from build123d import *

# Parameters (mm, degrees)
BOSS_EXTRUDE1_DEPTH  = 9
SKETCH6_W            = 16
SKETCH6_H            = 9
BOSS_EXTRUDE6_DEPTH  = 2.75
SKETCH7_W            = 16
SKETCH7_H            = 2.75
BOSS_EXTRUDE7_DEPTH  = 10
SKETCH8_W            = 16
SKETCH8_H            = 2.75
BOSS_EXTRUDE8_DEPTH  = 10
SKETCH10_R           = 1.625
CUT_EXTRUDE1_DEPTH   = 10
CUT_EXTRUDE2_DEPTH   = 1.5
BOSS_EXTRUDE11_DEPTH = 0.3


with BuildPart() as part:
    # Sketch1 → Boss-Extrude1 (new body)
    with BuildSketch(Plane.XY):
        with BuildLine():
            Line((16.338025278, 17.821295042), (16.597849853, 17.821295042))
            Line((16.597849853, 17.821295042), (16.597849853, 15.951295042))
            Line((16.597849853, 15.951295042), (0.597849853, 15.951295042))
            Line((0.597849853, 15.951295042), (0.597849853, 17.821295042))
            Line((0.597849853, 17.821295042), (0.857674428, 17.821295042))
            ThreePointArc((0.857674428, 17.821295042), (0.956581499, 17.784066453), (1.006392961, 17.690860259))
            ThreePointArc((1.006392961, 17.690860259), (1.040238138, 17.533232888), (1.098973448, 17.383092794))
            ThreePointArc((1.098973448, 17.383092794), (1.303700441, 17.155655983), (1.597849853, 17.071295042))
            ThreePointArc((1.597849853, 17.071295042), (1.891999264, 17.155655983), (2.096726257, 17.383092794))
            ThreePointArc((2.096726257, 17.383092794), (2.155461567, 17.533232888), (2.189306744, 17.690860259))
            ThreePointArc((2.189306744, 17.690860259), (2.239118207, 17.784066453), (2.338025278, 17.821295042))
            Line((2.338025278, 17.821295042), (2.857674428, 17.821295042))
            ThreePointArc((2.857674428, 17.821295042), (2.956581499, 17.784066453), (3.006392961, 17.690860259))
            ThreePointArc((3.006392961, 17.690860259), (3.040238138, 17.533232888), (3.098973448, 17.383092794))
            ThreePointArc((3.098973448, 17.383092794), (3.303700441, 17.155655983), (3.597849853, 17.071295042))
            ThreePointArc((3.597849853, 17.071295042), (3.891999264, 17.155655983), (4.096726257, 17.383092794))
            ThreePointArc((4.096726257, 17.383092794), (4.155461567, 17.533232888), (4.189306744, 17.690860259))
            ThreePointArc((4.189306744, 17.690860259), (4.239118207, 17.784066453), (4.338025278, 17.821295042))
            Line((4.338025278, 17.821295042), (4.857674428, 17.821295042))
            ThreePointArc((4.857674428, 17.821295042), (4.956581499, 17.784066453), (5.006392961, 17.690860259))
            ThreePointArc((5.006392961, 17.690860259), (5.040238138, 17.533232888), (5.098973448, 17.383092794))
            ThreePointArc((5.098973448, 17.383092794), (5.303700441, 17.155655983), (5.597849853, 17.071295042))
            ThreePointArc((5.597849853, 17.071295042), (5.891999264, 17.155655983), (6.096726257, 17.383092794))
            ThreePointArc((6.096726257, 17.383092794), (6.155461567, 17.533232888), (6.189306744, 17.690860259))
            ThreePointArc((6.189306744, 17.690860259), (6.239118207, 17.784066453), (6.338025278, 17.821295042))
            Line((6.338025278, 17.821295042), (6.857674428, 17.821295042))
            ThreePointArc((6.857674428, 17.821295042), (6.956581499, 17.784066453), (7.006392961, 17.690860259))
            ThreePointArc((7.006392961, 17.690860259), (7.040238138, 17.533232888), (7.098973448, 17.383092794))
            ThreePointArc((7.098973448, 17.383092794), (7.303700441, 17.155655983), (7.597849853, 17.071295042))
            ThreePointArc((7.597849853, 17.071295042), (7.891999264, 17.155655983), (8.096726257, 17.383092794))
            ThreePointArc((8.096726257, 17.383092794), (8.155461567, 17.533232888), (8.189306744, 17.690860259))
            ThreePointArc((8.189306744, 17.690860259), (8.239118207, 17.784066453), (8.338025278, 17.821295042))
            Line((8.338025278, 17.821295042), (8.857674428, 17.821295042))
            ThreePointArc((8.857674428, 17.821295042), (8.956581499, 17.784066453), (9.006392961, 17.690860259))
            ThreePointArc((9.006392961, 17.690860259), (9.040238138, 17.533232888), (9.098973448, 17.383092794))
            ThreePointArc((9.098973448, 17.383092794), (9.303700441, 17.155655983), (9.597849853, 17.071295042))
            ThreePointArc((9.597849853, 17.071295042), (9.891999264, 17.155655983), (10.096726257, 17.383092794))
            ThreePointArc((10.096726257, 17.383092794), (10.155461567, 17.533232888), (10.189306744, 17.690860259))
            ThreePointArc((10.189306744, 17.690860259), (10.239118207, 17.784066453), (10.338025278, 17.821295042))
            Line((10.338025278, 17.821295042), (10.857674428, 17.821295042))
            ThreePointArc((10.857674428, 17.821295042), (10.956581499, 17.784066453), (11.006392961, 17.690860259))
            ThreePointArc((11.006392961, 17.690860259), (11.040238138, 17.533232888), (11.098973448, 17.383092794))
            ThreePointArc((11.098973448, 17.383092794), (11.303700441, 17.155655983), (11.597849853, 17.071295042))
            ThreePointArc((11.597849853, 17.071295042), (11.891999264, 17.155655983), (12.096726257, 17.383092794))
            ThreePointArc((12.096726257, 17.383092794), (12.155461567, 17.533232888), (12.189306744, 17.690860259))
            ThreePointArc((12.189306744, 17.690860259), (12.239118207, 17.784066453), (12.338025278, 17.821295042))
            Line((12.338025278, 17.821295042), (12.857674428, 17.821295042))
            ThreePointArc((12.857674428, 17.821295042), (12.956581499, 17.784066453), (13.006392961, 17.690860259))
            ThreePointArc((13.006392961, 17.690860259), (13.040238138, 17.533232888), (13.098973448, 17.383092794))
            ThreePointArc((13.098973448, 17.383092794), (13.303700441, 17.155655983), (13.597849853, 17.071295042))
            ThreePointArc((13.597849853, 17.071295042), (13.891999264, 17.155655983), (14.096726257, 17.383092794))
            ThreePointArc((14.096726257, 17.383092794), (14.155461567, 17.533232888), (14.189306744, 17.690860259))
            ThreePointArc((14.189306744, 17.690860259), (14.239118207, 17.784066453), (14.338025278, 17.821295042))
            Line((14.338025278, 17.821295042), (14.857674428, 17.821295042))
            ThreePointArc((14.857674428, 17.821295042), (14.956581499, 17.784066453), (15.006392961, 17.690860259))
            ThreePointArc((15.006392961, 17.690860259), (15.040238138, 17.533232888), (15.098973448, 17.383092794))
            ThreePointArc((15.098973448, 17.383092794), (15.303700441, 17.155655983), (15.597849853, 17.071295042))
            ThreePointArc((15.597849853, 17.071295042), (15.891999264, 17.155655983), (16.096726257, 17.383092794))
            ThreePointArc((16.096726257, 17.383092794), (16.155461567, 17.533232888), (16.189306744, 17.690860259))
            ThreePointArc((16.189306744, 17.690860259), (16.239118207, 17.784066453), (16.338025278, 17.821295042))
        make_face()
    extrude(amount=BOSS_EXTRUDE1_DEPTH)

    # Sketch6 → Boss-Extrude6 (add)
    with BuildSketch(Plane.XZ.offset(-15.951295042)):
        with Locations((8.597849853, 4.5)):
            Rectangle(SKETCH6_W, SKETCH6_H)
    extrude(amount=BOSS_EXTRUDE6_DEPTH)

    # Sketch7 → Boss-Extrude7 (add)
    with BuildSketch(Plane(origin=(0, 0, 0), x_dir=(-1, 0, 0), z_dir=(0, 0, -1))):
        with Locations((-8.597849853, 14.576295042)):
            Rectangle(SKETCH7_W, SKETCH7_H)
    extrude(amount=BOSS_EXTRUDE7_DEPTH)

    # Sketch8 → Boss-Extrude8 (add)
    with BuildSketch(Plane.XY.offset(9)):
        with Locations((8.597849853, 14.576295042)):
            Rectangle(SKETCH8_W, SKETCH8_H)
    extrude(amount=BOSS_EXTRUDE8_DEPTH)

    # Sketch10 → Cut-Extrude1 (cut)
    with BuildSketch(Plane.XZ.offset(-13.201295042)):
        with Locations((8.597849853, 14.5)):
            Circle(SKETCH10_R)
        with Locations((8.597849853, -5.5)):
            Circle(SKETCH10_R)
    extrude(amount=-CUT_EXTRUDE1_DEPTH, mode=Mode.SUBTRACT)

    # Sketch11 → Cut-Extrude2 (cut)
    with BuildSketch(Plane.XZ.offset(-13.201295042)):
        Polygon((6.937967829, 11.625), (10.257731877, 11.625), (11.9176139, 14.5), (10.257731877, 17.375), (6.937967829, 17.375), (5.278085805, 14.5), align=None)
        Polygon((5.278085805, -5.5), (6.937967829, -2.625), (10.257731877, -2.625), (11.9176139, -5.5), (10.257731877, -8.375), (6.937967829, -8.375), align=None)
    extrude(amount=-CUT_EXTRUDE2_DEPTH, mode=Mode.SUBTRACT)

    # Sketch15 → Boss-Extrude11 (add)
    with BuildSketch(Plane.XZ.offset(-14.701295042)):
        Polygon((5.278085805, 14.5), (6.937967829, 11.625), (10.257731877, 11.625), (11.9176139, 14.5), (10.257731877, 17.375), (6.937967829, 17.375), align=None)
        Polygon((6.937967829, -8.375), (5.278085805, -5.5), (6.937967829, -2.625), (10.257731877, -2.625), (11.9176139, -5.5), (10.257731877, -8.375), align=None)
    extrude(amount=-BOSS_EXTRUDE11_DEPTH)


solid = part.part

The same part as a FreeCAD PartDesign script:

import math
import FreeCAD as App
import Part
import Sketcher

V = App.Vector
Q = App.Units.Quantity


def add_polygon(sketch, points):
    """Adds a closed chain of lines whose ends are joined by coincident constraints."""
    first, n = sketch.GeometryCount, len(points)
    for a, b in zip(points, points[1:] + points[:1]):
        sketch.addGeometry(Part.LineSegment(App.Vector(*a, 0), App.Vector(*b, 0)), False)
    for i in range(n):
        sketch.addConstraint(Sketcher.Constraint("Coincident", first + i, 2, first + (i + 1) % n, 1))

doc = App.newDocument("Part")
body = doc.addObject("PartDesign::Body", "Body")

# Sketch on XY plane
sketch1 = body.newObject("Sketcher::SketchObject", "Sketch")
sketch1.AttachmentSupport = (doc.getObject("XY_Plane"), [""])
sketch1.MapMode = "FlatFace"
sketch1.addGeometry(Part.LineSegment(V(16.6, 17.82, 0), V(16.34, 17.82, 0)), False)
sketch1.addGeometry(Part.ArcOfCircle(Part.Circle(V(16.34, 17.67, 0), V(0, 0, 1), 0.15), math.radians(90), math.radians(173)), False)
sketch1.addGeometry(Part.ArcOfCircle(Part.Circle(V(15.2, 17.82, 0), V(0, 0, 1), 1), math.radians(-25.99), math.radians(-7.49)), False)
sketch1.addGeometry(Part.ArcOfCircle(Part.Circle(V(15.6, 17.63, 0), V(0, 0, 1), 0.56), math.radians(-90), math.radians(-26)), False)
sketch1.addGeometry(Part.ArcOfCircle(Part.Circle(V(15.6, 17.63, 0), V(0, 0, 1), 0.56), math.radians(-154), math.radians(-90)), False)
sketch1.addGeometry(Part.ArcOfCircle(Part.Circle(V(16, 17.82, 0), V(0, 0, 1), 1), math.radians(-172.51), math.radians(-154.01)), False)
sketch1.addGeometry(Part.ArcOfCircle(Part.Circle(V(14.86, 17.67, 0), V(0, 0, 1), 0.15), math.radians(7), math.radians(90)), False)
sketch1.addGeometry(Part.LineSegment(V(14.86, 17.82, 0), V(14.34, 17.82, 0)), False)
sketch1.addGeometry(Part.ArcOfCircle(Part.Circle(V(14.34, 17.67, 0), V(0, 0, 1), 0.15), math.radians(90), math.radians(173)), False)
sketch1.addGeometry(Part.ArcOfCircle(Part.Circle(V(13.2, 17.82, 0), V(0, 0, 1), 1), math.radians(-25.99), math.radians(-7.49)), False)
sketch1.addGeometry(Part.ArcOfCircle(Part.Circle(V(13.6, 17.63, 0), V(0, 0, 1), 0.56), math.radians(-90), math.radians(-26)), False)
sketch1.addGeometry(Part.ArcOfCircle(Part.Circle(V(13.6, 17.63, 0), V(0, 0, 1), 0.56), math.radians(-154), math.radians(-90)), False)
sketch1.addGeometry(Part.ArcOfCircle(Part.Circle(V(14, 17.82, 0), V(0, 0, 1), 1), math.radians(-172.51), math.radians(-154.01)), False)
sketch1.addGeometry(Part.ArcOfCircle(Part.Circle(V(12.86, 17.67, 0), V(0, 0, 1), 0.15), math.radians(7), math.radians(90)), False)
sketch1.addGeometry(Part.LineSegment(V(12.86, 17.82, 0), V(12.34, 17.82, 0)), False)
sketch1.addGeometry(Part.ArcOfCircle(Part.Circle(V(12.34, 17.67, 0), V(0, 0, 1), 0.15), math.radians(90), math.radians(173)), False)
sketch1.addGeometry(Part.ArcOfCircle(Part.Circle(V(11.2, 17.82, 0), V(0, 0, 1), 1), math.radians(-25.99), math.radians(-7.49)), False)
sketch1.addGeometry(Part.ArcOfCircle(Part.Circle(V(11.6, 17.63, 0), V(0, 0, 1), 0.56), math.radians(-90), math.radians(-26)), False)
sketch1.addGeometry(Part.ArcOfCircle(Part.Circle(V(11.6, 17.63, 0), V(0, 0, 1), 0.56), math.radians(-154), math.radians(-90)), False)
sketch1.addGeometry(Part.ArcOfCircle(Part.Circle(V(12, 17.82, 0), V(0, 0, 1), 1), math.radians(-172.51), math.radians(-154.01)), False)
sketch1.addGeometry(Part.ArcOfCircle(Part.Circle(V(10.86, 17.67, 0), V(0, 0, 1), 0.15), math.radians(7), math.radians(90)), False)
sketch1.addGeometry(Part.LineSegment(V(10.86, 17.82, 0), V(10.34, 17.82, 0)), False)
sketch1.addGeometry(Part.ArcOfCircle(Part.Circle(V(10.34, 17.67, 0), V(0, 0, 1), 0.15), math.radians(90), math.radians(173)), False)
sketch1.addGeometry(Part.ArcOfCircle(Part.Circle(V(9.2, 17.82, 0), V(0, 0, 1), 1), math.radians(-25.99), math.radians(-7.49)), False)
sketch1.addGeometry(Part.ArcOfCircle(Part.Circle(V(9.6, 17.63, 0), V(0, 0, 1), 0.56), math.radians(-90), math.radians(-26)), False)
sketch1.addGeometry(Part.ArcOfCircle(Part.Circle(V(9.6, 17.63, 0), V(0, 0, 1), 0.56), math.radians(-154), math.radians(-90)), False)
sketch1.addGeometry(Part.ArcOfCircle(Part.Circle(V(10, 17.82, 0), V(0, 0, 1), 1), math.radians(-172.51), math.radians(-154.01)), False)
sketch1.addGeometry(Part.ArcOfCircle(Part.Circle(V(8.86, 17.67, 0), V(0, 0, 1), 0.15), math.radians(7), math.radians(90)), False)
sketch1.addGeometry(Part.LineSegment(V(8.86, 17.82, 0), V(8.34, 17.82, 0)), False)
sketch1.addGeometry(Part.ArcOfCircle(Part.Circle(V(8.34, 17.67, 0), V(0, 0, 1), 0.15), math.radians(90), math.radians(173)), False)
sketch1.addGeometry(Part.ArcOfCircle(Part.Circle(V(7.2, 17.82, 0), V(0, 0, 1), 1), math.radians(-25.99), math.radians(-7.49)), False)
sketch1.addGeometry(Part.ArcOfCircle(Part.Circle(V(7.6, 17.63, 0), V(0, 0, 1), 0.56), math.radians(-90), math.radians(-26)), False)
sketch1.addGeometry(Part.ArcOfCircle(Part.Circle(V(7.6, 17.63, 0), V(0, 0, 1), 0.56), math.radians(-154), math.radians(-90)), False)
sketch1.addGeometry(Part.ArcOfCircle(Part.Circle(V(8, 17.82, 0), V(0, 0, 1), 1), math.radians(-172.51), math.radians(-154.01)), False)
sketch1.addGeometry(Part.ArcOfCircle(Part.Circle(V(6.86, 17.67, 0), V(0, 0, 1), 0.15), math.radians(7), math.radians(90)), False)
sketch1.addGeometry(Part.LineSegment(V(6.86, 17.82, 0), V(6.34, 17.82, 0)), False)
sketch1.addGeometry(Part.ArcOfCircle(Part.Circle(V(6.34, 17.67, 0), V(0, 0, 1), 0.15), math.radians(90), math.radians(173)), False)
sketch1.addGeometry(Part.ArcOfCircle(Part.Circle(V(5.2, 17.82, 0), V(0, 0, 1), 1), math.radians(-25.99), math.radians(-7.49)), False)
sketch1.addGeometry(Part.ArcOfCircle(Part.Circle(V(5.6, 17.63, 0), V(0, 0, 1), 0.56), math.radians(-90), math.radians(-26)), False)
sketch1.addGeometry(Part.ArcOfCircle(Part.Circle(V(5.6, 17.63, 0), V(0, 0, 1), 0.56), math.radians(-154), math.radians(-90)), False)
sketch1.addGeometry(Part.ArcOfCircle(Part.Circle(V(6, 17.82, 0), V(0, 0, 1), 1), math.radians(-172.51), math.radians(-154.01)), False)
sketch1.addGeometry(Part.ArcOfCircle(Part.Circle(V(4.86, 17.67, 0), V(0, 0, 1), 0.15), math.radians(7), math.radians(90)), False)
sketch1.addGeometry(Part.LineSegment(V(4.86, 17.82, 0), V(4.34, 17.82, 0)), False)
sketch1.addGeometry(Part.ArcOfCircle(Part.Circle(V(4.34, 17.67, 0), V(0, 0, 1), 0.15), math.radians(90), math.radians(173)), False)
sketch1.addGeometry(Part.ArcOfCircle(Part.Circle(V(3.2, 17.82, 0), V(0, 0, 1), 1), math.radians(-25.99), math.radians(-7.49)), False)
sketch1.addGeometry(Part.ArcOfCircle(Part.Circle(V(3.6, 17.63, 0), V(0, 0, 1), 0.56), math.radians(-90), math.radians(-26)), False)
sketch1.addGeometry(Part.ArcOfCircle(Part.Circle(V(3.6, 17.63, 0), V(0, 0, 1), 0.56), math.radians(-154), math.radians(-90)), False)
sketch1.addGeometry(Part.ArcOfCircle(Part.Circle(V(4, 17.82, 0), V(0, 0, 1), 1), math.radians(-172.51), math.radians(-154.01)), False)
sketch1.addGeometry(Part.ArcOfCircle(Part.Circle(V(2.86, 17.67, 0), V(0, 0, 1), 0.15), math.radians(7), math.radians(90)), False)
sketch1.addGeometry(Part.LineSegment(V(2.86, 17.82, 0), V(2.34, 17.82, 0)), False)
sketch1.addGeometry(Part.ArcOfCircle(Part.Circle(V(2.34, 17.67, 0), V(0, 0, 1), 0.15), math.radians(90), math.radians(173)), False)
sketch1.addGeometry(Part.ArcOfCircle(Part.Circle(V(1.2, 17.82, 0), V(0, 0, 1), 1), math.radians(-25.99), math.radians(-7.49)), False)
sketch1.addGeometry(Part.ArcOfCircle(Part.Circle(V(1.6, 17.63, 0), V(0, 0, 1), 0.56), math.radians(-90), math.radians(-26)), False)
sketch1.addGeometry(Part.ArcOfCircle(Part.Circle(V(1.6, 17.63, 0), V(0, 0, 1), 0.56), math.radians(-154), math.radians(-90)), False)
sketch1.addGeometry(Part.ArcOfCircle(Part.Circle(V(2, 17.82, 0), V(0, 0, 1), 1), math.radians(-172.51), math.radians(-154.01)), False)
sketch1.addGeometry(Part.ArcOfCircle(Part.Circle(V(0.86, 17.67, 0), V(0, 0, 1), 0.15), math.radians(7), math.radians(90)), False)
sketch1.addGeometry(Part.LineSegment(V(0.86, 17.82, 0), V(0.6, 17.82, 0)), False)
sketch1.addGeometry(Part.LineSegment(V(0.6, 17.82, 0), V(0.6, 15.95, 0)), False)
sketch1.addGeometry(Part.LineSegment(V(0.6, 15.95, 0), V(16.6, 15.95, 0)), False)
sketch1.addGeometry(Part.LineSegment(V(16.6, 15.95, 0), V(16.6, 17.82, 0)), False)
sketch1.addConstraint(Sketcher.Constraint("Tangent", 0, 2, 1, 1))
sketch1.addConstraint(Sketcher.Constraint("Tangent", 1, 2, 2, 2))
sketch1.addConstraint(Sketcher.Constraint("Tangent", 2, 1, 3, 2))
sketch1.addConstraint(Sketcher.Constraint("Tangent", 3, 1, 4, 2))
sketch1.addConstraint(Sketcher.Constraint("Tangent", 4, 1, 5, 2))
sketch1.addConstraint(Sketcher.Constraint("Tangent", 5, 1, 6, 1))
sketch1.addConstraint(Sketcher.Constraint("Tangent", 6, 2, 7, 1))
sketch1.addConstraint(Sketcher.Constraint("Tangent", 7, 2, 8, 1))
sketch1.addConstraint(Sketcher.Constraint("Tangent", 8, 2, 9, 2))
sketch1.addConstraint(Sketcher.Constraint("Tangent", 9, 1, 10, 2))
sketch1.addConstraint(Sketcher.Constraint("Tangent", 10, 1, 11, 2))
sketch1.addConstraint(Sketcher.Constraint("Tangent", 11, 1, 12, 2))
sketch1.addConstraint(Sketcher.Constraint("Tangent", 12, 1, 13, 1))
sketch1.addConstraint(Sketcher.Constraint("Tangent", 13, 2, 14, 1))
sketch1.addConstraint(Sketcher.Constraint("Tangent", 14, 2, 15, 1))
sketch1.addConstraint(Sketcher.Constraint("Tangent", 15, 2, 16, 2))
sketch1.addConstraint(Sketcher.Constraint("Tangent", 16, 1, 17, 2))
sketch1.addConstraint(Sketcher.Constraint("Tangent", 17, 1, 18, 2))
sketch1.addConstraint(Sketcher.Constraint("Tangent", 18, 1, 19, 2))
sketch1.addConstraint(Sketcher.Constraint("Tangent", 19, 1, 20, 1))
sketch1.addConstraint(Sketcher.Constraint("Tangent", 20, 2, 21, 1))
sketch1.addConstraint(Sketcher.Constraint("Tangent", 21, 2, 22, 1))
sketch1.addConstraint(Sketcher.Constraint("Tangent", 22, 2, 23, 2))
sketch1.addConstraint(Sketcher.Constraint("Tangent", 23, 1, 24, 2))
sketch1.addConstraint(Sketcher.Constraint("Tangent", 24, 1, 25, 2))
sketch1.addConstraint(Sketcher.Constraint("Tangent", 25, 1, 26, 2))
sketch1.addConstraint(Sketcher.Constraint("Tangent", 26, 1, 27, 1))
sketch1.addConstraint(Sketcher.Constraint("Tangent", 27, 2, 28, 1))
sketch1.addConstraint(Sketcher.Constraint("Tangent", 28, 2, 29, 1))
sketch1.addConstraint(Sketcher.Constraint("Tangent", 29, 2, 30, 2))
sketch1.addConstraint(Sketcher.Constraint("Tangent", 30, 1, 31, 2))
sketch1.addConstraint(Sketcher.Constraint("Tangent", 31, 1, 32, 2))
sketch1.addConstraint(Sketcher.Constraint("Tangent", 32, 1, 33, 2))
sketch1.addConstraint(Sketcher.Constraint("Tangent", 33, 1, 34, 1))
sketch1.addConstraint(Sketcher.Constraint("Tangent", 34, 2, 35, 1))
sketch1.addConstraint(Sketcher.Constraint("Tangent", 35, 2, 36, 1))
sketch1.addConstraint(Sketcher.Constraint("Tangent", 36, 2, 37, 2))
sketch1.addConstraint(Sketcher.Constraint("Tangent", 37, 1, 38, 2))
sketch1.addConstraint(Sketcher.Constraint("Tangent", 38, 1, 39, 2))
sketch1.addConstraint(Sketcher.Constraint("Tangent", 39, 1, 40, 2))
sketch1.addConstraint(Sketcher.Constraint("Tangent", 40, 1, 41, 1))
sketch1.addConstraint(Sketcher.Constraint("Tangent", 41, 2, 42, 1))
sketch1.addConstraint(Sketcher.Constraint("Tangent", 42, 2, 43, 1))
sketch1.addConstraint(Sketcher.Constraint("Tangent", 43, 2, 44, 2))
sketch1.addConstraint(Sketcher.Constraint("Tangent", 44, 1, 45, 2))
sketch1.addConstraint(Sketcher.Constraint("Tangent", 45, 1, 46, 2))
sketch1.addConstraint(Sketcher.Constraint("Tangent", 46, 1, 47, 2))
sketch1.addConstraint(Sketcher.Constraint("Tangent", 47, 1, 48, 1))
sketch1.addConstraint(Sketcher.Constraint("Tangent", 48, 2, 49, 1))
sketch1.addConstraint(Sketcher.Constraint("Tangent", 49, 2, 50, 1))
sketch1.addConstraint(Sketcher.Constraint("Tangent", 50, 2, 51, 2))
sketch1.addConstraint(Sketcher.Constraint("Tangent", 51, 1, 52, 2))
sketch1.addConstraint(Sketcher.Constraint("Tangent", 52, 1, 53, 2))
sketch1.addConstraint(Sketcher.Constraint("Tangent", 53, 1, 54, 2))
sketch1.addConstraint(Sketcher.Constraint("Tangent", 54, 1, 55, 1))
sketch1.addConstraint(Sketcher.Constraint("Tangent", 55, 2, 56, 1))
sketch1.addConstraint(Sketcher.Constraint("Coincident", 56, 2, 57, 1))
sketch1.addConstraint(Sketcher.Constraint("Coincident", 57, 2, 58, 1))
sketch1.addConstraint(Sketcher.Constraint("Coincident", 58, 2, 59, 1))
sketch1.addConstraint(Sketcher.Constraint("Coincident", 59, 2, 0, 1))
sketch1.addConstraint(Sketcher.Constraint("Horizontal", 0))
sketch1.addConstraint(Sketcher.Constraint("Horizontal", 7))
sketch1.addConstraint(Sketcher.Constraint("Horizontal", 14))
sketch1.addConstraint(Sketcher.Constraint("Horizontal", 21))
sketch1.addConstraint(Sketcher.Constraint("Horizontal", 28))
sketch1.addConstraint(Sketcher.Constraint("Horizontal", 35))
sketch1.addConstraint(Sketcher.Constraint("Horizontal", 42))
sketch1.addConstraint(Sketcher.Constraint("Horizontal", 49))
sketch1.addConstraint(Sketcher.Constraint("Horizontal", 56))
sketch1.addConstraint(Sketcher.Constraint("Vertical", 57))
sketch1.addConstraint(Sketcher.Constraint("Horizontal", 58))
sketch1.addConstraint(Sketcher.Constraint("Vertical", 59))
sketch1.addConstraint(Sketcher.Constraint("Equal", 3, 4))
sketch1.addConstraint(Sketcher.Constraint("Equal", 2, 5))
sketch1.addConstraint(Sketcher.Constraint("Equal", 1, 6))
sketch1.addConstraint(Sketcher.Constraint("Equal", 6, 8))
sketch1.addConstraint(Sketcher.Constraint("Equal", 5, 9))
sketch1.addConstraint(Sketcher.Constraint("Equal", 4, 10))
sketch1.addConstraint(Sketcher.Constraint("Equal", 10, 11))
sketch1.addConstraint(Sketcher.Constraint("Equal", 9, 12))
sketch1.addConstraint(Sketcher.Constraint("Equal", 8, 13))
sketch1.addConstraint(Sketcher.Constraint("Equal", 13, 15))
sketch1.addConstraint(Sketcher.Constraint("Equal", 12, 16))
sketch1.addConstraint(Sketcher.Constraint("Equal", 11, 17))
sketch1.addConstraint(Sketcher.Constraint("Equal", 17, 18))
sketch1.addConstraint(Sketcher.Constraint("Equal", 16, 19))
sketch1.addConstraint(Sketcher.Constraint("Equal", 15, 20))
sketch1.addConstraint(Sketcher.Constraint("Equal", 20, 22))
sketch1.addConstraint(Sketcher.Constraint("Equal", 19, 23))
sketch1.addConstraint(Sketcher.Constraint("Equal", 18, 24))
sketch1.addConstraint(Sketcher.Constraint("Equal", 24, 25))
sketch1.addConstraint(Sketcher.Constraint("Equal", 23, 26))
sketch1.addConstraint(Sketcher.Constraint("Equal", 22, 27))
sketch1.addConstraint(Sketcher.Constraint("Equal", 27, 29))
sketch1.addConstraint(Sketcher.Constraint("Equal", 26, 30))
sketch1.addConstraint(Sketcher.Constraint("Equal", 25, 31))
sketch1.addConstraint(Sketcher.Constraint("Equal", 31, 32))
sketch1.addConstraint(Sketcher.Constraint("Equal", 30, 33))
sketch1.addConstraint(Sketcher.Constraint("Equal", 29, 34))
sketch1.addConstraint(Sketcher.Constraint("Equal", 34, 36))
sketch1.addConstraint(Sketcher.Constraint("Equal", 33, 37))
sketch1.addConstraint(Sketcher.Constraint("Equal", 32, 38))
sketch1.addConstraint(Sketcher.Constraint("Equal", 38, 39))
sketch1.addConstraint(Sketcher.Constraint("Equal", 37, 40))
sketch1.addConstraint(Sketcher.Constraint("Equal", 36, 41))
sketch1.addConstraint(Sketcher.Constraint("Equal", 41, 43))
sketch1.addConstraint(Sketcher.Constraint("Equal", 40, 44))
sketch1.addConstraint(Sketcher.Constraint("Equal", 39, 45))
sketch1.addConstraint(Sketcher.Constraint("Equal", 45, 46))
sketch1.addConstraint(Sketcher.Constraint("Equal", 44, 47))
sketch1.addConstraint(Sketcher.Constraint("Equal", 43, 48))
sketch1.addConstraint(Sketcher.Constraint("Equal", 48, 50))
sketch1.addConstraint(Sketcher.Constraint("Equal", 47, 51))
sketch1.addConstraint(Sketcher.Constraint("Equal", 46, 52))
sketch1.addConstraint(Sketcher.Constraint("Equal", 52, 53))
sketch1.addConstraint(Sketcher.Constraint("Equal", 51, 54))
sketch1.addConstraint(Sketcher.Constraint("Equal", 50, 55))
sketch1.addConstraint(Sketcher.Constraint("Horizontal", 2, 3, 5, 3))
sketch1.addConstraint(Sketcher.Constraint("Horizontal", 1, 3, 6, 3))
sketch1.addConstraint(Sketcher.Constraint("Horizontal", 5, 3, 9, 3))
sketch1.addConstraint(Sketcher.Constraint("Horizontal", 4, 3, 10, 3))
sketch1.addConstraint(Sketcher.Constraint("Horizontal", 9, 3, 12, 3))
sketch1.addConstraint(Sketcher.Constraint("Horizontal", 8, 3, 13, 3))
sketch1.addConstraint(Sketcher.Constraint("Horizontal", 12, 3, 16, 3))
sketch1.addConstraint(Sketcher.Constraint("Horizontal", 11, 3, 17, 3))
sketch1.addConstraint(Sketcher.Constraint("Horizontal", 16, 3, 19, 3))
sketch1.addConstraint(Sketcher.Constraint("Horizontal", 15, 3, 20, 3))
sketch1.addConstraint(Sketcher.Constraint("Horizontal", 19, 3, 23, 3))
sketch1.addConstraint(Sketcher.Constraint("Horizontal", 18, 3, 24, 3))
sketch1.addConstraint(Sketcher.Constraint("Horizontal", 23, 3, 26, 3))
sketch1.addConstraint(Sketcher.Constraint("Horizontal", 22, 3, 27, 3))
sketch1.addConstraint(Sketcher.Constraint("Horizontal", 26, 3, 30, 3))
sketch1.addConstraint(Sketcher.Constraint("Horizontal", 25, 3, 31, 3))
sketch1.addConstraint(Sketcher.Constraint("Horizontal", 30, 3, 33, 3))
sketch1.addConstraint(Sketcher.Constraint("Horizontal", 29, 3, 34, 3))
sketch1.addConstraint(Sketcher.Constraint("Horizontal", 33, 3, 37, 3))
sketch1.addConstraint(Sketcher.Constraint("Horizontal", 32, 3, 38, 3))
sketch1.addConstraint(Sketcher.Constraint("Horizontal", 37, 3, 40, 3))
sketch1.addConstraint(Sketcher.Constraint("Horizontal", 36, 3, 41, 3))
sketch1.addConstraint(Sketcher.Constraint("Horizontal", 40, 3, 44, 3))
sketch1.addConstraint(Sketcher.Constraint("Horizontal", 39, 3, 45, 3))
sketch1.addConstraint(Sketcher.Constraint("Horizontal", 44, 3, 47, 3))
sketch1.addConstraint(Sketcher.Constraint("Horizontal", 43, 3, 48, 3))
sketch1.addConstraint(Sketcher.Constraint("Horizontal", 47, 3, 51, 3))
sketch1.addConstraint(Sketcher.Constraint("Horizontal", 46, 3, 52, 3))
sketch1.addConstraint(Sketcher.Constraint("Horizontal", 51, 3, 54, 3))
sketch1.addConstraint(Sketcher.Constraint("Horizontal", 50, 3, 55, 3))
sketch1.addConstraint(Sketcher.Constraint("Horizontal", 54, 3, 0, 2))
sketch1.addConstraint(Sketcher.Constraint("Vertical", 4, 3, 3, 1))
sketch1.addConstraint(Sketcher.Constraint("Vertical", 11, 3, 10, 1))
sketch1.addConstraint(Sketcher.Constraint("Vertical", 18, 3, 17, 1))
sketch1.addConstraint(Sketcher.Constraint("Vertical", 25, 3, 24, 1))
sketch1.addConstraint(Sketcher.Constraint("Vertical", 32, 3, 31, 1))
sketch1.addConstraint(Sketcher.Constraint("Vertical", 39, 3, 38, 1))
sketch1.addConstraint(Sketcher.Constraint("Vertical", 46, 3, 45, 1))
sketch1.addConstraint(Sketcher.Constraint("Vertical", 53, 3, 52, 1))
sketch1.addConstraint(Sketcher.Constraint("Equal", 7, 14))
sketch1.addConstraint(Sketcher.Constraint("Equal", 14, 21))
sketch1.addConstraint(Sketcher.Constraint("Equal", 21, 28))
sketch1.addConstraint(Sketcher.Constraint("Equal", 28, 35))
sketch1.addConstraint(Sketcher.Constraint("Equal", 35, 42))
sketch1.addConstraint(Sketcher.Constraint("Equal", 42, 49))
sketch1.addConstraint(Sketcher.Constraint("Equal", 0, 56))
sketch1.addConstraint(Sketcher.Constraint("Radius", 2, 1.0))
sketch1.addConstraint(Sketcher.Constraint("DistanceX", 58, 1, 58, 2, 16.0))
sketch1.addConstraint(Sketcher.Constraint("Radius", 1, 0.15))
sketch1.addConstraint(Sketcher.Constraint("Radius", 3, 0.555))
sketch1.addConstraint(Sketcher.Constraint("DistanceY", 57, 2, 57, 1, 1.87))
sketch1.addConstraint(Sketcher.Constraint("DistanceX", 7, 2, 7, 1, 0.519649))
sketch1.addConstraint(Sketcher.Constraint("DistanceX", 0, 2, 0, 1, 0.259825))
sketch1.addConstraint(Sketcher.Constraint("DistanceX", -1, 1, 2, 3, 15.19785))
sketch1.addConstraint(Sketcher.Constraint("DistanceY", -1, 1, 1, 2, 17.69086))
pad1 = body.newObject("PartDesign::Pad", "Pad")
pad1.Profile = sketch1
pad1.Length = 9

# Sketch on XZ plane
sketch2 = body.newObject("Sketcher::SketchObject", "Sketch001")
sketch2.AttachmentSupport = (doc.getObject("XZ_Plane"), [""])
sketch2.MapMode = "FlatFace"
sketch2.AttachmentOffset = App.Placement(V(0, 0, -15.951295), App.Rotation())
add_polygon(sketch2, [(1, 9), (1, 0), (17, 0), (17, 9)])  # lines 0-3
sketch2.addConstraint(Sketcher.Constraint("Vertical", 0))
sketch2.addConstraint(Sketcher.Constraint("Horizontal", 1))
sketch2.addConstraint(Sketcher.Constraint("Vertical", 2))
sketch2.addConstraint(Sketcher.Constraint("Horizontal", 3))
sketch2.addConstraint(Sketcher.Constraint("PointOnObject", 0, 2, -1))
sketch2.addConstraint(Sketcher.Constraint("DistanceX", 1, 1, 1, 2, 16.0))
sketch2.addConstraint(Sketcher.Constraint("DistanceY", 0, 2, 0, 1, 9.0))
sketch2.addConstraint(Sketcher.Constraint("DistanceX", -1, 1, 0, 2, 0.59785))
pad2 = body.newObject("PartDesign::Pad", "Pad001")
pad2.Profile = sketch2
pad2.Length = 2.75

# Sketch on XY plane
sketch3 = body.newObject("Sketcher::SketchObject", "Sketch002")
sketch3.AttachmentSupport = (doc.getObject("XY_Plane"), [""])
sketch3.MapMode = "FlatFace"
add_polygon(sketch3, [(16.6, 16), (16.6, 13.2), (0.6, 13.2), (0.6, 16)])  # lines 0-3
sketch3.addConstraint(Sketcher.Constraint("Vertical", 0))
sketch3.addConstraint(Sketcher.Constraint("Horizontal", 1))
sketch3.addConstraint(Sketcher.Constraint("Vertical", 2))
sketch3.addConstraint(Sketcher.Constraint("Horizontal", 3))
sketch3.addConstraint(Sketcher.Constraint("DistanceX", 1, 2, 1, 1, 16.0))
sketch3.addConstraint(Sketcher.Constraint("DistanceY", 0, 2, 0, 1, 2.75))
sketch3.addConstraint(Sketcher.Constraint("DistanceX", -1, 1, 0, 2, 16.59785))
sketch3.addConstraint(Sketcher.Constraint("DistanceY", -1, 1, 0, 2, 13.201295))
pad3 = body.newObject("PartDesign::Pad", "Pad002")
pad3.Profile = sketch3
pad3.Length = 10
pad3.Reversed = True

# Sketch on XY plane
sketch4 = body.newObject("Sketcher::SketchObject", "Sketch003")
sketch4.AttachmentSupport = (doc.getObject("XY_Plane"), [""])
sketch4.MapMode = "FlatFace"
sketch4.AttachmentOffset = App.Placement(V(0, 0, 9), App.Rotation())
add_polygon(sketch4, [(0.6, 16), (0.6, 13.2), (16.6, 13.2), (16.6, 16)])  # lines 0-3
sketch4.addConstraint(Sketcher.Constraint("Vertical", 0))
sketch4.addConstraint(Sketcher.Constraint("Horizontal", 1))
sketch4.addConstraint(Sketcher.Constraint("Vertical", 2))
sketch4.addConstraint(Sketcher.Constraint("Horizontal", 3))
sketch4.addConstraint(Sketcher.Constraint("DistanceX", 1, 1, 1, 2, 16.0))
sketch4.addConstraint(Sketcher.Constraint("DistanceY", 0, 2, 0, 1, 2.75))
sketch4.addConstraint(Sketcher.Constraint("DistanceX", -1, 1, 0, 2, 0.59785))
sketch4.addConstraint(Sketcher.Constraint("DistanceY", -1, 1, 0, 2, 13.201295))
pad4 = body.newObject("PartDesign::Pad", "Pad003")
pad4.Profile = sketch4
pad4.Length = 10

# Sketch on XZ plane
sketch5 = body.newObject("Sketcher::SketchObject", "Sketch004")
sketch5.AttachmentSupport = (doc.getObject("XZ_Plane"), [""])
sketch5.MapMode = "FlatFace"
sketch5.AttachmentOffset = App.Placement(V(0, 0, -13.201295), App.Rotation())
sketch5.addGeometry(Part.Circle(V(8.6, 14.5, 0), V(0, 0, 1), 1.6), False)
sketch5.addGeometry(Part.Circle(V(8.6, -5.5, 0), V(0, 0, 1), 1.6), False)
sketch5.addConstraint(Sketcher.Constraint("Equal", 0, 1))
sketch5.addConstraint(Sketcher.Constraint("Vertical", 0, 3, 1, 3))
sketch5.addConstraint(Sketcher.Constraint("Diameter", 0, 3.25))
sketch5.addConstraint(Sketcher.Constraint("DistanceY", 1, 3, 0, 3, 20.0))
sketch5.addConstraint(Sketcher.Constraint("DistanceY", -1, 1, 0, 3, 14.5))
sketch5.addConstraint(Sketcher.Constraint("DistanceX", -1, 1, 0, 3, 8.59785))
pocket1 = body.newObject("PartDesign::Pocket", "Pocket")
pocket1.Profile = sketch5
pocket1.Length = 10

# Sketch on XZ plane
sketch6 = body.newObject("Sketcher::SketchObject", "Sketch005")
sketch6.AttachmentSupport = (doc.getObject("XZ_Plane"), [""])
sketch6.MapMode = "FlatFace"
sketch6.AttachmentOffset = App.Placement(V(0, 0, -13.201295), App.Rotation())
add_polygon(sketch6, [(6.9, 11.6), (10.3, 11.6), (11.9, 14.5), (10.3, 17.4), (6.9, 17.4), (5.3, 14.5)])  # lines 0-5
add_polygon(sketch6, [(6.9, -2.6), (5.3, -5.5), (6.9, -8.4), (10.3, -8.4), (11.9, -5.5), (10.3, -2.6)])  # lines 6-11
sketch6.addConstraint(Sketcher.Constraint("Horizontal", 0))
sketch6.addConstraint(Sketcher.Constraint("Horizontal", 3))
sketch6.addConstraint(Sketcher.Constraint("Horizontal", 8))
sketch6.addConstraint(Sketcher.Constraint("Horizontal", 11))
sketch6.addConstraint(Sketcher.Constraint("Parallel", 1, 4))
sketch6.addConstraint(Sketcher.Constraint("Parallel", 2, 5))
sketch6.addConstraint(Sketcher.Constraint("Parallel", 4, 6))
sketch6.addConstraint(Sketcher.Constraint("Parallel", 5, 7))
sketch6.addConstraint(Sketcher.Constraint("Parallel", 6, 9))
sketch6.addConstraint(Sketcher.Constraint("Parallel", 7, 10))
sketch6.addConstraint(Sketcher.Constraint("Horizontal", 1, 2, 4, 2))
sketch6.addConstraint(Sketcher.Constraint("Horizontal", 6, 2, 9, 2))
sketch6.addConstraint(Sketcher.Constraint("Vertical", 0, 2, 2, 2))
sketch6.addConstraint(Sketcher.Constraint("Vertical", 3, 2, 5, 2))
sketch6.addConstraint(Sketcher.Constraint("Vertical", 4, 2, 6, 2))
sketch6.addConstraint(Sketcher.Constraint("Vertical", 5, 2, 7, 2))
sketch6.addConstraint(Sketcher.Constraint("Vertical", 2, 2, 8, 2))
sketch6.addConstraint(Sketcher.Constraint("Vertical", 8, 2, 10, 2))
sketch6.addConstraint(Sketcher.Constraint("Angle", 1, Q("60 deg")))
sketch6.addConstraint(Sketcher.Constraint("DistanceY", 6, 2, 4, 2, 20.0))
sketch6.addConstraint(Sketcher.Constraint("DistanceY", -1, 1, 1, 2, 14.5))
sketch6.addConstraint(Sketcher.Constraint("DistanceY", 0, 2, 2, 2, 5.75))
sketch6.addConstraint(Sketcher.Constraint("DistanceX", 0, 1, 0, 2, 3.319764))
sketch6.addConstraint(Sketcher.Constraint("DistanceX", -1, 1, 0, 2, 10.257732))
pocket2 = body.newObject("PartDesign::Pocket", "Pocket001")
pocket2.Profile = sketch6
pocket2.Length = 1.5

# Sketch on XZ plane
sketch7 = body.newObject("Sketcher::SketchObject", "Sketch006")
sketch7.AttachmentSupport = (doc.getObject("XZ_Plane"), [""])
sketch7.MapMode = "FlatFace"
sketch7.AttachmentOffset = App.Placement(V(0, 0, -14.701295), App.Rotation())
add_polygon(sketch7, [(5.3, 14.5), (6.9, 11.6), (10.3, 11.6), (11.9, 14.5), (10.3, 17.4), (6.9, 17.4)])  # lines 0-5
add_polygon(sketch7, [(5.3, -5.5), (6.9, -8.4), (10.3, -8.4), (11.9, -5.5), (10.3, -2.6), (6.9, -2.6)])  # lines 6-11
sketch7.addConstraint(Sketcher.Constraint("Horizontal", 1))
sketch7.addConstraint(Sketcher.Constraint("Horizontal", 4))
sketch7.addConstraint(Sketcher.Constraint("Horizontal", 7))
sketch7.addConstraint(Sketcher.Constraint("Horizontal", 10))
sketch7.addConstraint(Sketcher.Constraint("Parallel", 0, 3))
sketch7.addConstraint(Sketcher.Constraint("Parallel", 2, 5))
sketch7.addConstraint(Sketcher.Constraint("Parallel", 3, 6))
sketch7.addConstraint(Sketcher.Constraint("Parallel", 5, 8))
sketch7.addConstraint(Sketcher.Constraint("Parallel", 6, 9))
sketch7.addConstraint(Sketcher.Constraint("Parallel", 8, 11))
sketch7.addConstraint(Sketcher.Constraint("Horizontal", 2, 2, 5, 2))
sketch7.addConstraint(Sketcher.Constraint("Horizontal", 8, 2, 11, 2))
sketch7.addConstraint(Sketcher.Constraint("Vertical", 1, 2, 3, 2))
sketch7.addConstraint(Sketcher.Constraint("Vertical", 0, 2, 4, 2))
sketch7.addConstraint(Sketcher.Constraint("Vertical", 4, 2, 6, 2))
sketch7.addConstraint(Sketcher.Constraint("Vertical", 3, 2, 7, 2))
sketch7.addConstraint(Sketcher.Constraint("Vertical", 2, 2, 8, 2))
sketch7.addConstraint(Sketcher.Constraint("Vertical", 7, 2, 9, 2))
sketch7.addConstraint(Sketcher.Constraint("Angle", 0, Q("-60 deg")))
sketch7.addConstraint(Sketcher.Constraint("DistanceY", 6, 2, 0, 2, 20.0))
sketch7.addConstraint(Sketcher.Constraint("DistanceY", -1, 1, 2, 2, 14.5))
sketch7.addConstraint(Sketcher.Constraint("DistanceY", 1, 2, 3, 2, 5.75))
sketch7.addConstraint(Sketcher.Constraint("DistanceX", 1, 1, 1, 2, 3.319764))
sketch7.addConstraint(Sketcher.Constraint("DistanceX", -1, 1, 1, 2, 10.257732))
pad5 = body.newObject("PartDesign::Pad", "Pad004")
pad5.Profile = sketch7
pad5.Length = 0.3
pad5.Reversed = True

doc.recompute()
